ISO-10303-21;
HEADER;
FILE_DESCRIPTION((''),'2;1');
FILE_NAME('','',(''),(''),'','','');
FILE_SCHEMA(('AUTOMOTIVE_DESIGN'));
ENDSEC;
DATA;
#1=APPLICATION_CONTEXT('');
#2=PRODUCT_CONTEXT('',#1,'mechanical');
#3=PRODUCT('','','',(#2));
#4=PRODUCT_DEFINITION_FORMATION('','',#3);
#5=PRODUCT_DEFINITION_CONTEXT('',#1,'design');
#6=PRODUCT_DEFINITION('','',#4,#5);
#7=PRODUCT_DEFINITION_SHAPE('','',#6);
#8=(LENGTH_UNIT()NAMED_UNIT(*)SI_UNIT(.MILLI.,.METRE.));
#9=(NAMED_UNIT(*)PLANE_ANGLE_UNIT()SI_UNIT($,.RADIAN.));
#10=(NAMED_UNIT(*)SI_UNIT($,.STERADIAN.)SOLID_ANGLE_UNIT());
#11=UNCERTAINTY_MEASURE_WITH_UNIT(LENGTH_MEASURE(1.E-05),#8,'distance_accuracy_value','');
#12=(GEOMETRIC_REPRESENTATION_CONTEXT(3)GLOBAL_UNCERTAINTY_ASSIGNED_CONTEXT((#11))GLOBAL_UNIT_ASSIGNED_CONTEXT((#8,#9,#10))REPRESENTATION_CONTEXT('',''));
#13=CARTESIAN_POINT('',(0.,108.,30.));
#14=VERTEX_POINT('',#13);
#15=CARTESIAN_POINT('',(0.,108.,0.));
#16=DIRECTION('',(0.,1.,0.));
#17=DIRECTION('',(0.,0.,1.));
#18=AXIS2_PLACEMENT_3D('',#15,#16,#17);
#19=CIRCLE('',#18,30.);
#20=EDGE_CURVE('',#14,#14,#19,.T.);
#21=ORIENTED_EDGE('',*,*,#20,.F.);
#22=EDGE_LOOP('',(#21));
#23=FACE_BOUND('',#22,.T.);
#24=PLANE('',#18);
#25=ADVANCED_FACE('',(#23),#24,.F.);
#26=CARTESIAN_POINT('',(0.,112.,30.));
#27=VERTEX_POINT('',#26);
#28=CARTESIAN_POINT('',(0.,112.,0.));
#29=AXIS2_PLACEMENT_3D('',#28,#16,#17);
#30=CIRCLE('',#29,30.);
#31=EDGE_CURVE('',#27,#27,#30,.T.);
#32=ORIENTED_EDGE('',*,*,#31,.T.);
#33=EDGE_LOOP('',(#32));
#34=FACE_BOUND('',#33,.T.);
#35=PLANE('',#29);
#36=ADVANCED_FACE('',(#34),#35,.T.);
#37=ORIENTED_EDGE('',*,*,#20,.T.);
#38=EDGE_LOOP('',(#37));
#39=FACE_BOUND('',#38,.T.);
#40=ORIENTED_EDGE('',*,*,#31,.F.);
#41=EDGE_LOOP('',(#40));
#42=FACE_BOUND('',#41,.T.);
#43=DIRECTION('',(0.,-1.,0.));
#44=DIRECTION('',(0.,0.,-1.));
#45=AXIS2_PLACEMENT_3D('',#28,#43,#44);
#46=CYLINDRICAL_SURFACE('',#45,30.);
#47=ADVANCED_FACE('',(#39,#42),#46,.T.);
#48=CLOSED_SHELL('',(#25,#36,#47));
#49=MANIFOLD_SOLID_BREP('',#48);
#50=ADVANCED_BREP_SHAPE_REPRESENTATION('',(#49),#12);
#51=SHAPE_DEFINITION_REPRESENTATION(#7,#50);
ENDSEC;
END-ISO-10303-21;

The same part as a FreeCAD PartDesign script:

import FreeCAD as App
import Part
import Sketcher
from FreeCAD import Vector
Q = App.Units.Quantity

doc = App.newDocument("Part")
body = doc.addObject("PartDesign::Body", "Body")

# Sketch on XZ plane
sketch1 = body.newObject("Sketcher::SketchObject", "Sketch")
sketch1.AttachmentSupport = (doc.getObject("XZ_Plane"), [""])
sketch1.MapMode = "FlatFace"
sketch1.AttachmentOffset = App.Placement(Vector(0, 0, -108), App.Rotation())
sketch1.addGeometry(Part.Circle(Vector(0, 0, 0), Vector(0, 0, 1), 30), False)
sketch1.addConstraint([
    Sketcher.Constraint("Coincident", 0, 3, -1, 1),
    Sketcher.Constraint("Diameter", 0, Q("60 mm")),
])
pad1 = body.newObject("PartDesign::Pad", "Pad")
pad1.Profile = sketch1
pad1.Length = 4
pad1.Reversed = True

doc.recompute()
